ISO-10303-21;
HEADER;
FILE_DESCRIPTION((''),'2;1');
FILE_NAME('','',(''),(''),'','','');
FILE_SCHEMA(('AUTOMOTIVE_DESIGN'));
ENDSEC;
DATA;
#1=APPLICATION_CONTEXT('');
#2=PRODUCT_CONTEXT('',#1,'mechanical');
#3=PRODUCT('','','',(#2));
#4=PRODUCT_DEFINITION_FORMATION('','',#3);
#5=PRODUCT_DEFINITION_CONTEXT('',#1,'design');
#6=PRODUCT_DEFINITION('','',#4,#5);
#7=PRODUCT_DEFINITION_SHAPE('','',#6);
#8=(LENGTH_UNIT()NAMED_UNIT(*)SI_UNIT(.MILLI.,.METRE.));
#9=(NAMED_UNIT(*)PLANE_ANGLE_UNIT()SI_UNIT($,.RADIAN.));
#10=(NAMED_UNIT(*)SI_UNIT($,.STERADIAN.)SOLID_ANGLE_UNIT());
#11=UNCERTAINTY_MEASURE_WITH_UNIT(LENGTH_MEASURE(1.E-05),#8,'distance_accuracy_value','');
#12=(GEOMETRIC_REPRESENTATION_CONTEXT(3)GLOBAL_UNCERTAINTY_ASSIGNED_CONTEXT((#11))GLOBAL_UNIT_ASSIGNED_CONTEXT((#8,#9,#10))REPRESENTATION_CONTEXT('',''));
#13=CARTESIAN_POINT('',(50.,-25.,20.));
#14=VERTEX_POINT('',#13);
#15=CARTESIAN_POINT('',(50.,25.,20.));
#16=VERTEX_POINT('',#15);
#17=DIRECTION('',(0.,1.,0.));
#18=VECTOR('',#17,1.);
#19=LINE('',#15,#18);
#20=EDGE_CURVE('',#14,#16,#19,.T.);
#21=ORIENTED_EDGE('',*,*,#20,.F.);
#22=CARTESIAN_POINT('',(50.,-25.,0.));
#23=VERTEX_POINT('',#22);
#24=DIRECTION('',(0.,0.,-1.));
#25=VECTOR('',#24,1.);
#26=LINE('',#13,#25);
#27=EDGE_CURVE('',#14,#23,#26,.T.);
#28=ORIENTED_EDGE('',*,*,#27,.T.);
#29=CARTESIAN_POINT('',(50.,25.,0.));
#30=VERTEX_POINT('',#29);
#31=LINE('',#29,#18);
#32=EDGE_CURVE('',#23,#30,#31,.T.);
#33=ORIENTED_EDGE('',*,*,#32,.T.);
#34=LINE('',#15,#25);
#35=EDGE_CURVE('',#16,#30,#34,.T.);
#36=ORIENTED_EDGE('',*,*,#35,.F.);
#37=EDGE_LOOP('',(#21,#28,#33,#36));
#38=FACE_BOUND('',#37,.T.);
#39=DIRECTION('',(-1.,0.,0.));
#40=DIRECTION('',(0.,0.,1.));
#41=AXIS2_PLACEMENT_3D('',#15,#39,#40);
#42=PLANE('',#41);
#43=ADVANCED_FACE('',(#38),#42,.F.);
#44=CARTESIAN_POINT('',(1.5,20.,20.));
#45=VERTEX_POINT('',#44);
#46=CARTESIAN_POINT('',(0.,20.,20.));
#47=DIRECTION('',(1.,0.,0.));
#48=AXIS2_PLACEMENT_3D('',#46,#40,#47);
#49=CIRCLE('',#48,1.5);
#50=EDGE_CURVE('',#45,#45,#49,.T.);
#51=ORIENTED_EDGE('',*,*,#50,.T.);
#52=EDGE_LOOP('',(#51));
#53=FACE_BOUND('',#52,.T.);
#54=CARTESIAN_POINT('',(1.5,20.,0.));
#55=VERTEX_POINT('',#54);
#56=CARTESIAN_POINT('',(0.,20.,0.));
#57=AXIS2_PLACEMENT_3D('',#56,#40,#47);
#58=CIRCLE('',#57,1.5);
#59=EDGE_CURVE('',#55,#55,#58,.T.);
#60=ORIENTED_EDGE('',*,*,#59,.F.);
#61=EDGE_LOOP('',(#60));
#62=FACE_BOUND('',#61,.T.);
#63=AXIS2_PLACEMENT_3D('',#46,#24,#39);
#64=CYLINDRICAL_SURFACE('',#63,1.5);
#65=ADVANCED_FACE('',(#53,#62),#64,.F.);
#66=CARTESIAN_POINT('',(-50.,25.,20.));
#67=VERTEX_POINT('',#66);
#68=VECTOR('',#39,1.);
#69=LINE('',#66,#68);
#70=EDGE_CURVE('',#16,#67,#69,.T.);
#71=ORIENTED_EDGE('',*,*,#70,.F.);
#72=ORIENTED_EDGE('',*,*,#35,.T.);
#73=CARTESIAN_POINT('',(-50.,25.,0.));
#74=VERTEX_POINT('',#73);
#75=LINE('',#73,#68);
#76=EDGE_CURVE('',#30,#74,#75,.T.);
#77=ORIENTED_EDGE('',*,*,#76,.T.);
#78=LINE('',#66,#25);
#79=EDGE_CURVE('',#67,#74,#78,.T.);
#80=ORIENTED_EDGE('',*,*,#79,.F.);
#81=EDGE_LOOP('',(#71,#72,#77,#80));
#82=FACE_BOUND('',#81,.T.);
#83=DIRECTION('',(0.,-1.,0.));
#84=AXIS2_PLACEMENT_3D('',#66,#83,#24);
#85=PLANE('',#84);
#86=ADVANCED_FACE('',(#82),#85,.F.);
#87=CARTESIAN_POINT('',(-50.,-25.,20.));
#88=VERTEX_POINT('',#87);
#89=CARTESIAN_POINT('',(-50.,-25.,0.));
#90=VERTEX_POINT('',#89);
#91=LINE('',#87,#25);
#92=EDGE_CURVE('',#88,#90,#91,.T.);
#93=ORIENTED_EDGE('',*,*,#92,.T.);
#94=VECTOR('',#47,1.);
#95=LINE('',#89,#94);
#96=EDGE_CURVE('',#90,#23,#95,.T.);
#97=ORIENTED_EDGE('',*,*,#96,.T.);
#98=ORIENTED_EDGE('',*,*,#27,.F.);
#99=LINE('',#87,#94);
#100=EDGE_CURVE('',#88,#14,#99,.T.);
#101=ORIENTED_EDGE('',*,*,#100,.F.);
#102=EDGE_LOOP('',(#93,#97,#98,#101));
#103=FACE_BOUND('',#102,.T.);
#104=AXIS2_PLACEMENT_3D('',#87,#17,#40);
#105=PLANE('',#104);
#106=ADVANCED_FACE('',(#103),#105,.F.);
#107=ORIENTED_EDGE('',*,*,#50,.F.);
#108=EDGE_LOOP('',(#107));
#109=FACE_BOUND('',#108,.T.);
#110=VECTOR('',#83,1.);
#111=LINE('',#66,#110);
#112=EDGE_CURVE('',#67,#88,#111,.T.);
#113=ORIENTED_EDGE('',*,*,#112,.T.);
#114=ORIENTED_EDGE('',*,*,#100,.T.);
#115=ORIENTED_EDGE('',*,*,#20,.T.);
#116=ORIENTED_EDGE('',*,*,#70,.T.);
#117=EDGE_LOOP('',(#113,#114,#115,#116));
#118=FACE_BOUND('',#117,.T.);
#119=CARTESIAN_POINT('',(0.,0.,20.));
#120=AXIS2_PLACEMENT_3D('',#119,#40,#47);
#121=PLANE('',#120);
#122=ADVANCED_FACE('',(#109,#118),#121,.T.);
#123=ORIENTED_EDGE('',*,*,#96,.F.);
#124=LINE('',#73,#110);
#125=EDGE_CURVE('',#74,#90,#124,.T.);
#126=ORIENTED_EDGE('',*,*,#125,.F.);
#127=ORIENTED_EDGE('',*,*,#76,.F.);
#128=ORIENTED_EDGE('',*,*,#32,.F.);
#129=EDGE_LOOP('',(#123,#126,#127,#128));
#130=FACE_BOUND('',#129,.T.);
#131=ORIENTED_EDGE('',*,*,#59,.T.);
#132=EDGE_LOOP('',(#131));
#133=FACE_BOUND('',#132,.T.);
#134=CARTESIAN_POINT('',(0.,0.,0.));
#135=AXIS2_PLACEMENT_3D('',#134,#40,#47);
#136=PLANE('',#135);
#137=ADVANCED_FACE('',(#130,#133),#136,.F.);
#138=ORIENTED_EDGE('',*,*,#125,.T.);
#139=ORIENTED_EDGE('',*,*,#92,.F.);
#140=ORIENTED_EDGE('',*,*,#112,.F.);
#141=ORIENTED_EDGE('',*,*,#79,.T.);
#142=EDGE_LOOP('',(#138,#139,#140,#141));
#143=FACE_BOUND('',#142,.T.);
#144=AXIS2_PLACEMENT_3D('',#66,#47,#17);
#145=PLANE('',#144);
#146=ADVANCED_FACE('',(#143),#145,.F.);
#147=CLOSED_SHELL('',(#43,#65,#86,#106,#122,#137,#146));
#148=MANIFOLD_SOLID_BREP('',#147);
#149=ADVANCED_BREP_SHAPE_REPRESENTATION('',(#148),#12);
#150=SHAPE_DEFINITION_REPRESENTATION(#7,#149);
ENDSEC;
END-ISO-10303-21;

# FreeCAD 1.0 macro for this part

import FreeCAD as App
import Part
import Sketcher

V = App.Vector
Q = App.Units.Quantity


def add_polygon(sketch, points):
    """Adds a closed chain of lines whose ends are joined by coincident constraints."""
    first, n = sketch.GeometryCount, len(points)
    for a, b in zip(points, points[1:] + points[:1]):
        sketch.addGeometry(Part.LineSegment(App.Vector(*a, 0), App.Vector(*b, 0)), False)
    for i in range(n):
        sketch.addConstraint(Sketcher.Constraint("Coincident", first + i, 2, first + (i + 1) % n, 1))

doc = App.newDocument("Part")
params = doc.addObject("Spreadsheet::Sheet", "Params")
for row, (alias, value) in enumerate([
    ("sketch1_diameter", "3 mm"),
    ("sketch1_width", "100 mm"),
    ("sketch1_height", "50 mm"),
    ("pad1_length", "20 mm"),
], start=1):
    params.set(f"A{row}", alias)
    params.set(f"B{row}", "=" + value)
    params.setAlias(f"B{row}", alias)

body = doc.addObject("PartDesign::Body", "Body")

sketch1 = body.newObject("Sketcher::SketchObject", "Sketch")
sketch1.AttachmentSupport = (doc.getObject("XY_Plane"), [""])
sketch1.MapMode = "FlatFace"
add_polygon(sketch1, [(-50, 25), (-50, -25), (50, -25), (50, 25)])
sketch1.addGeometry(Part.Circle(V(0, 20, 0), V(0, 0, 1), 1.5), False)
sketch1.addConstraint([
    Sketcher.Constraint("Vertical", 0),
    Sketcher.Constraint("Horizontal", 1),
    Sketcher.Constraint("Vertical", 2),
    Sketcher.Constraint("Horizontal", 3),
    Sketcher.Constraint("Symmetric", 0, 2, 2, 2, -1, 1),
    Sketcher.Constraint("PointOnObject", 4, 3, -2),
    Sketcher.Constraint("Diameter", 4, Q("3 mm")),
    Sketcher.Constraint("DistanceX", 1, 1, 1, 2, Q("100 mm")),
    Sketcher.Constraint("DistanceY", 0, 2, 0, 1, Q("50 mm")),
    Sketcher.Constraint("DistanceY", -1, 1, 4, 3, Q("20 mm")),
])
sketch1.setExpression("Constraints[10]", "Params.sketch1_diameter")
sketch1.setExpression("Constraints[11]", "Params.sketch1_width")
sketch1.setExpression("Constraints[12]", "Params.sketch1_height")
pad1 = body.newObject("PartDesign::Pad", "Pad")
pad1.Profile = sketch1
pad1.setExpression("Length", "Params.pad1_length")

doc.recompute()
